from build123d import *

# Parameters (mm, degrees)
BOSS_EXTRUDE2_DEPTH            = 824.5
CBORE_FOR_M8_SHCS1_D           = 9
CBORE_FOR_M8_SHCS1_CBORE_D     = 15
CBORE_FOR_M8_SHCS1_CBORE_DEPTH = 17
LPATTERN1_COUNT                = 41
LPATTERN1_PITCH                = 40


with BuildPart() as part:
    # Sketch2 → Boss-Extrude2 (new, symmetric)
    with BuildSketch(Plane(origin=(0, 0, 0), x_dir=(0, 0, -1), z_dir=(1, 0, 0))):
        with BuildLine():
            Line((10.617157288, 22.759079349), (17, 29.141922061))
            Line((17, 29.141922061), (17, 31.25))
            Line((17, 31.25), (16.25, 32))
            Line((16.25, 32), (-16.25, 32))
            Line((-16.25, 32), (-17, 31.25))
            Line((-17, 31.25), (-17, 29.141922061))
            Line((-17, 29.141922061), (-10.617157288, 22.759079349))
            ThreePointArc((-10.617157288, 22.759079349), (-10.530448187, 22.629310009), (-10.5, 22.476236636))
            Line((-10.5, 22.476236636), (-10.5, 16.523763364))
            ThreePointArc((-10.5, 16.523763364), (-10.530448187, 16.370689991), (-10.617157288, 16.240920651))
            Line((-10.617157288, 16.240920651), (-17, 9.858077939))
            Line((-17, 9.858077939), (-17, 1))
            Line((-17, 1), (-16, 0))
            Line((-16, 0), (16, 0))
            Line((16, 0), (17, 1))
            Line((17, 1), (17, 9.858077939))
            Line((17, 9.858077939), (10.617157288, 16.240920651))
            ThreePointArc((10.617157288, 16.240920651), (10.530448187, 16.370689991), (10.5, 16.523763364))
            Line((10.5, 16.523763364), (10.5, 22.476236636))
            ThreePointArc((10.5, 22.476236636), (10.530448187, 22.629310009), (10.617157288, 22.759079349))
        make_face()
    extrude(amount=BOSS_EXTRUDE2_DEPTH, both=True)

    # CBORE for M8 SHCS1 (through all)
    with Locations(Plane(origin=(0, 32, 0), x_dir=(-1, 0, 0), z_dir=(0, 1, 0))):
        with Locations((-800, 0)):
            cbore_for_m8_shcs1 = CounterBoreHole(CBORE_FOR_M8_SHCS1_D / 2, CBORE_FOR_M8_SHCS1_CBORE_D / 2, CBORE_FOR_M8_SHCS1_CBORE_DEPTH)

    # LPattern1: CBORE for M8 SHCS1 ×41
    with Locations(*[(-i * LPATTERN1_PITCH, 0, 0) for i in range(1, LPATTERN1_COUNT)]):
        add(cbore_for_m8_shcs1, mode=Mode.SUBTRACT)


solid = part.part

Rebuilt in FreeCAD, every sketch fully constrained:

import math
import FreeCAD as App
import Part
import Sketcher
from FreeCAD import Vector
Q = App.Units.Quantity

doc = App.newDocument("Part")
body = doc.addObject("PartDesign::Body", "Body")

# Sketch on YZ plane
sketch1 = body.newObject("Sketcher::SketchObject", "Sketch")
sketch1.AttachmentSupport = (doc.getObject("YZ_Plane"), [""])
sketch1.MapMode = "FlatFace"
sketch1.addGeometry(Part.LineSegment(Vector(22.76, -10.62, 0), Vector(29.14, -17, 0)), False)
sketch1.addGeometry(Part.LineSegment(Vector(29.14, -17, 0), Vector(31.25, -17, 0)), False)
sketch1.addGeometry(Part.LineSegment(Vector(31.25, -17, 0), Vector(32, -16.25, 0)), False)
sketch1.addGeometry(Part.LineSegment(Vector(32, -16.25, 0), Vector(32, 16.25, 0)), False)
sketch1.addGeometry(Part.LineSegment(Vector(32, 16.25, 0), Vector(31.25, 17, 0)), False)
sketch1.addGeometry(Part.LineSegment(Vector(31.25, 17, 0), Vector(29.14, 17, 0)), False)
sketch1.addGeometry(Part.LineSegment(Vector(29.14, 17, 0), Vector(22.76, 10.62, 0)), False)
sketch1.addGeometry(Part.ArcOfCircle(Part.Circle(Vector(22.48, 10.9, 0), Vector(0, 0, 1), 0.4), math.radians(-90), math.radians(-45)), False)
sketch1.addGeometry(Part.LineSegment(Vector(22.48, 10.5, 0), Vector(16.52, 10.5, 0)), False)
sketch1.addGeometry(Part.ArcOfCircle(Part.Circle(Vector(16.52, 10.9, 0), Vector(0, 0, 1), 0.4), math.radians(-135), math.radians(-90)), False)
sketch1.addGeometry(Part.LineSegment(Vector(16.24, 10.62, 0), Vector(9.86, 17, 0)), False)
sketch1.addGeometry(Part.LineSegment(Vector(9.86, 17, 0), Vector(1, 17, 0)), False)
sketch1.addGeometry(Part.LineSegment(Vector(1, 17, 0), Vector(0, 16, 0)), False)
sketch1.addGeometry(Part.LineSegment(Vector(0, 16, 0), Vector(0, -16, 0)), False)
sketch1.addGeometry(Part.LineSegment(Vector(0, -16, 0), Vector(1, -17, 0)), False)
sketch1.addGeometry(Part.LineSegment(Vector(1, -17, 0), Vector(9.86, -17, 0)), False)
sketch1.addGeometry(Part.LineSegment(Vector(9.86, -17, 0), Vector(16.24, -10.62, 0)), False)
sketch1.addGeometry(Part.ArcOfCircle(Part.Circle(Vector(16.52, -10.9, 0), Vector(0, 0, 1), 0.4), math.radians(90), math.radians(135)), False)
sketch1.addGeometry(Part.LineSegment(Vector(16.52, -10.5, 0), Vector(22.48, -10.5, 0)), False)
sketch1.addGeometry(Part.ArcOfCircle(Part.Circle(Vector(22.48, -10.9, 0), Vector(0, 0, 1), 0.4), math.radians(45), math.radians(90)), False)
sketch1.addConstraint(Sketcher.Constraint("Coincident", 0, 2, 1, 1))
sketch1.addConstraint(Sketcher.Constraint("Coincident", 1, 2, 2, 1))
sketch1.addConstraint(Sketcher.Constraint("Coincident", 2, 2, 3, 1))
sketch1.addConstraint(Sketcher.Constraint("Coincident", 3, 2, 4, 1))
sketch1.addConstraint(Sketcher.Constraint("Coincident", 4, 2, 5, 1))
sketch1.addConstraint(Sketcher.Constraint("Coincident", 5, 2, 6, 1))
sketch1.addConstraint(Sketcher.Constraint("Tangent", 6, 2, 7, 2))
sketch1.addConstraint(Sketcher.Constraint("Tangent", 7, 1, 8, 1))
sketch1.addConstraint(Sketcher.Constraint("Tangent", 8, 2, 9, 2))
sketch1.addConstraint(Sketcher.Constraint("Tangent", 9, 1, 10, 1))
sketch1.addConstraint(Sketcher.Constraint("Coincident", 10, 2, 11, 1))
sketch1.addConstraint(Sketcher.Constraint("Coincident", 11, 2, 12, 1))
sketch1.addConstraint(Sketcher.Constraint("Coincident", 12, 2, 13, 1))
sketch1.addConstraint(Sketcher.Constraint("Coincident", 13, 2, 14, 1))
sketch1.addConstraint(Sketcher.Constraint("Coincident", 14, 2, 15, 1))
sketch1.addConstraint(Sketcher.Constraint("Coincident", 15, 2, 16, 1))
sketch1.addConstraint(Sketcher.Constraint("Tangent", 16, 2, 17, 2))
sketch1.addConstraint(Sketcher.Constraint("Tangent", 17, 1, 18, 1))
sketch1.addConstraint(Sketcher.Constraint("Tangent", 18, 2, 19, 2))
sketch1.addConstraint(Sketcher.Constraint("Tangent", 19, 1, 0, 1))
sketch1.addConstraint(Sketcher.Constraint("Horizontal", 1))
sketch1.addConstraint(Sketcher.Constraint("Vertical", 3))
sketch1.addConstraint(Sketcher.Constraint("Horizontal", 5))
sketch1.addConstraint(Sketcher.Constraint("Horizontal", 8))
sketch1.addConstraint(Sketcher.Constraint("Horizontal", 11))
sketch1.addConstraint(Sketcher.Constraint("Vertical", 13))
sketch1.addConstraint(Sketcher.Constraint("Horizontal", 15))
sketch1.addConstraint(Sketcher.Constraint("Horizontal", 18))
sketch1.addConstraint(Sketcher.Constraint("Equal", 7, 9))
sketch1.addConstraint(Sketcher.Constraint("Equal", 9, 17))
sketch1.addConstraint(Sketcher.Constraint("Equal", 17, 19))
sketch1.addConstraint(Sketcher.Constraint("Symmetric", 12, 2, 13, 2, -1, 1))
sketch1.addConstraint(Sketcher.Constraint("Symmetric", 9, 3, 17, 3, -1))
sketch1.addConstraint(Sketcher.Constraint("Symmetric", 1, 2, 4, 2, -1))
sketch1.addConstraint(Sketcher.Constraint("Symmetric", 11, 2, 14, 2, -1))
sketch1.addConstraint(Sketcher.Constraint("Symmetric", 6, 2, 19, 1, -1))
sketch1.addConstraint(Sketcher.Constraint("Perpendicular", 0, 2))
sketch1.addConstraint(Sketcher.Constraint("Perpendicular", 2, 4))
sketch1.addConstraint(Sketcher.Constraint("Perpendicular", 4, 6))
sketch1.addConstraint(Sketcher.Constraint("Perpendicular", 6, 10))
sketch1.addConstraint(Sketcher.Constraint("Perpendicular", 10, 12))
sketch1.addConstraint(Sketcher.Constraint("Perpendicular", 14, 16))
sketch1.addConstraint(Sketcher.Constraint("Horizontal", 5, 2, 10, 2))
sketch1.addConstraint(Sketcher.Constraint("Radius", 7, Q("0.4 mm")))
sketch1.addConstraint(Sketcher.Constraint("DistanceY", 13, 2, 13, 1, Q("32 mm")))
sketch1.addConstraint(Sketcher.Constraint("DistanceY", 3, 1, 3, 2, Q("32.5 mm")))
sketch1.addConstraint(Sketcher.Constraint("DistanceY", 0, 2, -1, 1, Q("17 mm")))
sketch1.addConstraint(Sketcher.Constraint("DistanceX", -1, 1, 2, 2, Q("32 mm")))
sketch1.addConstraint(Sketcher.Constraint("DistanceY", -1, 1, 7, 3, Q("10.9 mm")))
sketch1.addConstraint(Sketcher.Constraint("DistanceX", 16, 2, 0, 2, Q("12.901001 mm")))
sketch1.addConstraint(Sketcher.Constraint("DistanceX", 1, 1, 1, 2, Q("2.108078 mm")))
pad1 = body.newObject("PartDesign::Pad", "Pad")
pad1.Profile = sketch1
pad1.Length = 1649
pad1.Midplane = True

# Sketch on XZ plane
sketch2 = body.newObject("Sketcher::SketchObject", "Sketch001")
sketch2.AttachmentSupport = (doc.getObject("XZ_Plane"), [""])
sketch2.MapMode = "FlatFace"
sketch2.AttachmentOffset = App.Placement(Vector(0, 0, -32), App.Rotation())
sketch2.addGeometry(Part.Circle(Vector(800, 0, 0), Vector(0, 0, 1), 4.5), False)
sketch2.addConstraint(Sketcher.Constraint("PointOnObject", 0, 3, -1))
sketch2.addConstraint(Sketcher.Constraint("Diameter", 0, Q("9 mm")))
sketch2.addConstraint(Sketcher.Constraint("DistanceX", -1, 1, 0, 3, Q("800 mm")))
doc.recompute()
hole = body.newObject("PartDesign::Hole", "Hole")
hole.Profile = sketch2
hole.ThreadType = "None"
hole.Diameter = 9
hole.DepthType = "ThroughAll"
hole.HoleCutType = "Counterbore"
hole.HoleCutDiameter = 15
hole.HoleCutDepth = 17
hole.Reversed = True
doc.recompute()

linearpattern = body.newObject("PartDesign::LinearPattern", "LinearPattern")
linearpattern.Originals = [hole]
linearpattern.Direction = (doc.getObject("X_Axis"), [""])
linearpattern.Mode = "offset"
linearpattern.Offset = 40
linearpattern.Occurrences = 41
linearpattern.Reversed = True
body.Tip = linearpattern

doc.recompute()
